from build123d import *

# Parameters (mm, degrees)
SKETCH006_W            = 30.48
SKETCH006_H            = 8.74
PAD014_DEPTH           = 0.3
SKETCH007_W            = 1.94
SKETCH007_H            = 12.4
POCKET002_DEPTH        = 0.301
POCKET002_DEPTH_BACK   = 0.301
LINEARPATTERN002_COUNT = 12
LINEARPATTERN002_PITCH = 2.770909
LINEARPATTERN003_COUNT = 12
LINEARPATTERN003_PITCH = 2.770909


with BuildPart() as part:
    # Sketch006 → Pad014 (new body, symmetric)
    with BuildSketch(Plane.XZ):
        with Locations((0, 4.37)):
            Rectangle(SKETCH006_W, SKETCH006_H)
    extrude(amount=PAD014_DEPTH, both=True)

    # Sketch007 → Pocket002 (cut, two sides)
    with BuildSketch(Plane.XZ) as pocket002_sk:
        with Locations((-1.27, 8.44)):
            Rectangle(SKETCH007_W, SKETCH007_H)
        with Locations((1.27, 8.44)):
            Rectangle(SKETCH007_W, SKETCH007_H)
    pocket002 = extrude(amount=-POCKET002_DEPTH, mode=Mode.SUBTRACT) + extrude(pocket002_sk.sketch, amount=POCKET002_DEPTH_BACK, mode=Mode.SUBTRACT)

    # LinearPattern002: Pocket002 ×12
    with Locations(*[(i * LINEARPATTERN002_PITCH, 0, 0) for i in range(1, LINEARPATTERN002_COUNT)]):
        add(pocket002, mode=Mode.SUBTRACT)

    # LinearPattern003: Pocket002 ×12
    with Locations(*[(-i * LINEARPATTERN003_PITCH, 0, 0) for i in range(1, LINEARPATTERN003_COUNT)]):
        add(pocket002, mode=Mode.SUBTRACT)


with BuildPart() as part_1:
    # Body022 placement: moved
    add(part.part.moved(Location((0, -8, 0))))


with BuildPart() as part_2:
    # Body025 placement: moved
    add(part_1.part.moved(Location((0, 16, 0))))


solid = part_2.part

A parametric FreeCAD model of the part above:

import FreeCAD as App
import Part
import Sketcher


def add_polygon(sketch, points):
    """Adds a closed chain of lines whose ends are joined by coincident constraints."""
    first, n = sketch.GeometryCount, len(points)
    for a, b in zip(points, points[1:] + points[:1]):
        sketch.addGeometry(Part.LineSegment(App.Vector(*a, 0), App.Vector(*b, 0)), False)
    for i in range(n):
        sketch.addConstraint(Sketcher.Constraint("Coincident", first + i, 2, first + (i + 1) % n, 1))

doc = App.newDocument("Part")
body = doc.addObject("PartDesign::Body", "Body")

sketch1 = doc.addObject("Sketcher::SketchObject", "Sketch")
body.addObject(sketch1)
sketch1.AttachmentSupport = (doc.XZ_Plane, [""])
sketch1.MapMode = "FlatFace"
add_polygon(sketch1, [(-15, 9), (-15, 0), (15, 0), (15, 9)])
sketch1.addConstraint([
    Sketcher.Constraint("Vertical", 0),
    Sketcher.Constraint("Horizontal", 1),
    Sketcher.Constraint("Vertical", 2),
    Sketcher.Constraint("Horizontal", 3),
    Sketcher.Constraint("Symmetric", 0, 2, 1, 2, -1, 1),
    Sketcher.Constraint("DistanceX", 1, 1, 1, 2, 30.48),
    Sketcher.Constraint("DistanceY", 0, 2, 0, 1, 8.74),
])
pad1 = doc.addObject("PartDesign::Pad", "Pad")
body.addObject(pad1)
pad1.Profile = sketch1
pad1.Length = 0.6
pad1.Midplane = True

sketch2 = doc.addObject("Sketcher::SketchObject", "Sketch001")
body.addObject(sketch2)
sketch2.AttachmentSupport = (doc.XZ_Plane, [""])
sketch2.MapMode = "FlatFace"
add_polygon(sketch2, [(-2.2, 14.6), (-2.2, 2.2), (-0.3, 2.2), (-0.3, 14.6)])
add_polygon(sketch2, [(0.3, 14.6), (0.3, 2.2), (2.2, 2.2), (2.2, 14.6)])
sketch2.addConstraint([
    Sketcher.Constraint("Vertical", 0),
    Sketcher.Constraint("Horizontal", 1),
    Sketcher.Constraint("Vertical", 2),
    Sketcher.Constraint("Horizontal", 3),
    Sketcher.Constraint("Vertical", 4),
    Sketcher.Constraint("Horizontal", 5),
    Sketcher.Constraint("Vertical", 6),
    Sketcher.Constraint("Horizontal", 7),
    Sketcher.Constraint("Symmetric", 1, 2, 4, 2, -2),
    Sketcher.Constraint("Symmetric", 3, 2, 6, 2, -2),
    Sketcher.Constraint("DistanceY", 0, 2, 0, 1, 12.4),
    Sketcher.Constraint("DistanceX", 1, 1, 1, 2, 1.94),
    Sketcher.Constraint("DistanceX", 1, 2, -1, 1, 0.3),
    Sketcher.Constraint("DistanceY", -1, 1, 0, 2, 2.24),
])
pocket1 = doc.addObject("PartDesign::Pocket", "Pocket")
body.addObject(pocket1)
pocket1.Profile = sketch2
pocket1.Type = "ThroughAll"
pocket1.Midplane = True
doc.recompute()

linearpattern = doc.addObject("PartDesign::LinearPattern", "LinearPattern")
body.addObject(linearpattern)
linearpattern.Originals = [pocket1]
linearpattern.Direction = (doc.X_Axis, [""])
linearpattern.Mode = "offset"
linearpattern.Offset = 2.770909
linearpattern.Occurrences = 12
body.Tip = linearpattern
doc.recompute()

linearpattern2 = doc.addObject("PartDesign::LinearPattern", "LinearPattern001")
body.addObject(linearpattern2)
linearpattern2.Originals = [pocket1]
linearpattern2.Direction = (doc.X_Axis, [""])
linearpattern2.Mode = "offset"
linearpattern2.Offset = 2.770909
linearpattern2.Occurrences = 12
linearpattern2.Reversed = True
body.Tip = linearpattern2
body2 = doc.addObject("PartDesign::Body", "Body001")
doc.recompute()

body.Placement = App.Placement(App.Vector(0, -8, 0), App.Rotation(App.Vector(0, 0, 1), 0))
boolean = doc.addObject("PartDesign::Boolean", "Boolean")
body2.addObject(boolean)
boolean.Type = "Fuse"
boolean.addObjects([body])
body3 = doc.addObject("PartDesign::Body", "Body002")
doc.recompute()

body2.Placement = App.Placement(App.Vector(0, 16, 0), App.Rotation(App.Vector(0, 0, 1), 0))
boolean2 = doc.addObject("PartDesign::Boolean", "Boolean001")
body3.addObject(boolean2)
boolean2.Type = "Fuse"
boolean2.addObjects([body2])

doc.recompute()
